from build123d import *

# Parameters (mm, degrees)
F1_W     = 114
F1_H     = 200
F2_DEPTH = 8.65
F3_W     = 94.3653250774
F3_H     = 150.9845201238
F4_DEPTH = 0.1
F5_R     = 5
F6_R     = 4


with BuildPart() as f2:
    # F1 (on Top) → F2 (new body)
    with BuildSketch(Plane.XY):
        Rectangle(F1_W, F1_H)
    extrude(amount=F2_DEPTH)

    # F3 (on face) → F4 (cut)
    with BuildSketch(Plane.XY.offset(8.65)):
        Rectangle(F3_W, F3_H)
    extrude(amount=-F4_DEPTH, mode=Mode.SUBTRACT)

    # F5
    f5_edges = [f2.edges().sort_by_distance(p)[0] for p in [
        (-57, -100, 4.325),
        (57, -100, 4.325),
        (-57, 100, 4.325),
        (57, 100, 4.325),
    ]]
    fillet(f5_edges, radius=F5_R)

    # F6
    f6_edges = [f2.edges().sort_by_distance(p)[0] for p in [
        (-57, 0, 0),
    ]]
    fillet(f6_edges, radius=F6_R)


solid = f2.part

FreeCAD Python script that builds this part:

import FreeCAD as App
import Part
import Sketcher
from FreeCAD import Vector
Q = App.Units.Quantity


def edges_at(feature, points):
    """Names of the edges that pass closest to the given points."""
    edges = feature.Shape.Edges
    near = lambda p: min(range(len(edges)), key=lambda i: edges[i].distToShape(Part.Vertex(*p))[0])
    return sorted({f"Edge{near(p) + 1}" for p in points})

doc = App.newDocument("Part")
params = doc.addObject("Spreadsheet::Sheet", "Params")
for row, (alias, value) in enumerate([
    ("sketch1_width", "114 mm"),
    ("sketch1_height", "200 mm"),
    ("pad1_length", "8.65 mm"),
    ("pocket1_length", "0.1 mm"),
    ("fillet_radius", "5 mm"),
    ("fillet2_radius", "4 mm"),
], start=1):
    params.set(f"A{row}", alias)
    params.set(f"B{row}", "=" + value)
    params.setAlias(f"B{row}", alias)

body = doc.addObject("PartDesign::Body", "Body")

sketch1 = body.newObject("Sketcher::SketchObject", "Sketch")
sketch1.AttachmentSupport = (doc.getObject("XY_Plane"), [""])
sketch1.MapMode = "FlatFace"
sketch1.addGeometry([
    Part.LineSegment(Vector(-57, 100, 0), Vector(-57, -100, 0)),
    Part.LineSegment(Vector(-57, -100, 0), Vector(57, -100, 0)),
    Part.LineSegment(Vector(57, -100, 0), Vector(57, 100, 0)),
    Part.LineSegment(Vector(57, 100, 0), Vector(-57, 100, 0)),
], False)
sketch1.addConstraint([
    Sketcher.Constraint("Coincident", 0, 2, 1, 1),
    Sketcher.Constraint("Coincident", 1, 2, 2, 1),
    Sketcher.Constraint("Coincident", 2, 2, 3, 1),
    Sketcher.Constraint("Coincident", 3, 2, 0, 1),
    Sketcher.Constraint("Vertical", 0),
    Sketcher.Constraint("Horizontal", 1),
    Sketcher.Constraint("Vertical", 2),
    Sketcher.Constraint("Horizontal", 3),
    Sketcher.Constraint("Symmetric", 0, 2, 2, 2, -1, 1),
    Sketcher.Constraint("DistanceX", 1, 1, 1, 2, Q("114 mm")),
    Sketcher.Constraint("DistanceY", 0, 2, 0, 1, Q("200 mm")),
])
sketch1.setExpression("Constraints[9]", "Params.sketch1_width")
sketch1.setExpression("Constraints[10]", "Params.sketch1_height")
pad1 = body.newObject("PartDesign::Pad", "Pad")
pad1.Profile = sketch1
pad1.setExpression("Length", "Params.pad1_length")

sketch2 = body.newObject("Sketcher::SketchObject", "Sketch001")
sketch2.AttachmentSupport = (doc.getObject("XY_Plane"), [""])
sketch2.MapMode = "FlatFace"
sketch2.AttachmentOffset = App.Placement(Vector(0, 0, 8.65), App.Rotation())
sketch2.addGeometry([
    Part.LineSegment(Vector(-47, 75, 0), Vector(-47, -75, 0)),
    Part.LineSegment(Vector(-47, -75, 0), Vector(47, -75, 0)),
    Part.LineSegment(Vector(47, -75, 0), Vector(47, 75, 0)),
    Part.LineSegment(Vector(47, 75, 0), Vector(-47, 75, 0)),
], False)
sketch2.addConstraint([
    Sketcher.Constraint("Coincident", 0, 2, 1, 1),
    Sketcher.Constraint("Coincident", 1, 2, 2, 1),
    Sketcher.Constraint("Coincident", 2, 2, 3, 1),
    Sketcher.Constraint("Coincident", 3, 2, 0, 1),
    Sketcher.Constraint("Vertical", 0),
    Sketcher.Constraint("Horizontal", 1),
    Sketcher.Constraint("Vertical", 2),
    Sketcher.Constraint("Horizontal", 3),
    Sketcher.Constraint("Symmetric", 0, 2, 2, 2, -1, 1),
    Sketcher.Constraint("DistanceY", 0, 2, 0, 1, Q("150.98452 mm")),
    Sketcher.Constraint("DistanceX", 1, 1, 1, 2, Q("94.365325 mm")),
])
pocket1 = body.newObject("PartDesign::Pocket", "Pocket")
pocket1.Profile = sketch2
pocket1.setExpression("Length", "Params.pocket1_length")
doc.recompute()

fillet = body.newObject("PartDesign::Fillet", "Fillet")
fillet.Base = (pocket1, edges_at(pocket1, [
    (-57, -100, 4.325),
    (57, -100, 4.325),
    (-57, 100, 4.325),
    (57, 100, 4.325),
]))
fillet.setExpression("Radius", "Params.fillet_radius")
doc.recompute()

fillet2 = body.newObject("PartDesign::Fillet", "Fillet001")
fillet2.Base = (fillet, edges_at(fillet, [(-57, 0, 0)]))
fillet2.setExpression("Radius", "Params.fillet2_radius")

doc.recompute()
